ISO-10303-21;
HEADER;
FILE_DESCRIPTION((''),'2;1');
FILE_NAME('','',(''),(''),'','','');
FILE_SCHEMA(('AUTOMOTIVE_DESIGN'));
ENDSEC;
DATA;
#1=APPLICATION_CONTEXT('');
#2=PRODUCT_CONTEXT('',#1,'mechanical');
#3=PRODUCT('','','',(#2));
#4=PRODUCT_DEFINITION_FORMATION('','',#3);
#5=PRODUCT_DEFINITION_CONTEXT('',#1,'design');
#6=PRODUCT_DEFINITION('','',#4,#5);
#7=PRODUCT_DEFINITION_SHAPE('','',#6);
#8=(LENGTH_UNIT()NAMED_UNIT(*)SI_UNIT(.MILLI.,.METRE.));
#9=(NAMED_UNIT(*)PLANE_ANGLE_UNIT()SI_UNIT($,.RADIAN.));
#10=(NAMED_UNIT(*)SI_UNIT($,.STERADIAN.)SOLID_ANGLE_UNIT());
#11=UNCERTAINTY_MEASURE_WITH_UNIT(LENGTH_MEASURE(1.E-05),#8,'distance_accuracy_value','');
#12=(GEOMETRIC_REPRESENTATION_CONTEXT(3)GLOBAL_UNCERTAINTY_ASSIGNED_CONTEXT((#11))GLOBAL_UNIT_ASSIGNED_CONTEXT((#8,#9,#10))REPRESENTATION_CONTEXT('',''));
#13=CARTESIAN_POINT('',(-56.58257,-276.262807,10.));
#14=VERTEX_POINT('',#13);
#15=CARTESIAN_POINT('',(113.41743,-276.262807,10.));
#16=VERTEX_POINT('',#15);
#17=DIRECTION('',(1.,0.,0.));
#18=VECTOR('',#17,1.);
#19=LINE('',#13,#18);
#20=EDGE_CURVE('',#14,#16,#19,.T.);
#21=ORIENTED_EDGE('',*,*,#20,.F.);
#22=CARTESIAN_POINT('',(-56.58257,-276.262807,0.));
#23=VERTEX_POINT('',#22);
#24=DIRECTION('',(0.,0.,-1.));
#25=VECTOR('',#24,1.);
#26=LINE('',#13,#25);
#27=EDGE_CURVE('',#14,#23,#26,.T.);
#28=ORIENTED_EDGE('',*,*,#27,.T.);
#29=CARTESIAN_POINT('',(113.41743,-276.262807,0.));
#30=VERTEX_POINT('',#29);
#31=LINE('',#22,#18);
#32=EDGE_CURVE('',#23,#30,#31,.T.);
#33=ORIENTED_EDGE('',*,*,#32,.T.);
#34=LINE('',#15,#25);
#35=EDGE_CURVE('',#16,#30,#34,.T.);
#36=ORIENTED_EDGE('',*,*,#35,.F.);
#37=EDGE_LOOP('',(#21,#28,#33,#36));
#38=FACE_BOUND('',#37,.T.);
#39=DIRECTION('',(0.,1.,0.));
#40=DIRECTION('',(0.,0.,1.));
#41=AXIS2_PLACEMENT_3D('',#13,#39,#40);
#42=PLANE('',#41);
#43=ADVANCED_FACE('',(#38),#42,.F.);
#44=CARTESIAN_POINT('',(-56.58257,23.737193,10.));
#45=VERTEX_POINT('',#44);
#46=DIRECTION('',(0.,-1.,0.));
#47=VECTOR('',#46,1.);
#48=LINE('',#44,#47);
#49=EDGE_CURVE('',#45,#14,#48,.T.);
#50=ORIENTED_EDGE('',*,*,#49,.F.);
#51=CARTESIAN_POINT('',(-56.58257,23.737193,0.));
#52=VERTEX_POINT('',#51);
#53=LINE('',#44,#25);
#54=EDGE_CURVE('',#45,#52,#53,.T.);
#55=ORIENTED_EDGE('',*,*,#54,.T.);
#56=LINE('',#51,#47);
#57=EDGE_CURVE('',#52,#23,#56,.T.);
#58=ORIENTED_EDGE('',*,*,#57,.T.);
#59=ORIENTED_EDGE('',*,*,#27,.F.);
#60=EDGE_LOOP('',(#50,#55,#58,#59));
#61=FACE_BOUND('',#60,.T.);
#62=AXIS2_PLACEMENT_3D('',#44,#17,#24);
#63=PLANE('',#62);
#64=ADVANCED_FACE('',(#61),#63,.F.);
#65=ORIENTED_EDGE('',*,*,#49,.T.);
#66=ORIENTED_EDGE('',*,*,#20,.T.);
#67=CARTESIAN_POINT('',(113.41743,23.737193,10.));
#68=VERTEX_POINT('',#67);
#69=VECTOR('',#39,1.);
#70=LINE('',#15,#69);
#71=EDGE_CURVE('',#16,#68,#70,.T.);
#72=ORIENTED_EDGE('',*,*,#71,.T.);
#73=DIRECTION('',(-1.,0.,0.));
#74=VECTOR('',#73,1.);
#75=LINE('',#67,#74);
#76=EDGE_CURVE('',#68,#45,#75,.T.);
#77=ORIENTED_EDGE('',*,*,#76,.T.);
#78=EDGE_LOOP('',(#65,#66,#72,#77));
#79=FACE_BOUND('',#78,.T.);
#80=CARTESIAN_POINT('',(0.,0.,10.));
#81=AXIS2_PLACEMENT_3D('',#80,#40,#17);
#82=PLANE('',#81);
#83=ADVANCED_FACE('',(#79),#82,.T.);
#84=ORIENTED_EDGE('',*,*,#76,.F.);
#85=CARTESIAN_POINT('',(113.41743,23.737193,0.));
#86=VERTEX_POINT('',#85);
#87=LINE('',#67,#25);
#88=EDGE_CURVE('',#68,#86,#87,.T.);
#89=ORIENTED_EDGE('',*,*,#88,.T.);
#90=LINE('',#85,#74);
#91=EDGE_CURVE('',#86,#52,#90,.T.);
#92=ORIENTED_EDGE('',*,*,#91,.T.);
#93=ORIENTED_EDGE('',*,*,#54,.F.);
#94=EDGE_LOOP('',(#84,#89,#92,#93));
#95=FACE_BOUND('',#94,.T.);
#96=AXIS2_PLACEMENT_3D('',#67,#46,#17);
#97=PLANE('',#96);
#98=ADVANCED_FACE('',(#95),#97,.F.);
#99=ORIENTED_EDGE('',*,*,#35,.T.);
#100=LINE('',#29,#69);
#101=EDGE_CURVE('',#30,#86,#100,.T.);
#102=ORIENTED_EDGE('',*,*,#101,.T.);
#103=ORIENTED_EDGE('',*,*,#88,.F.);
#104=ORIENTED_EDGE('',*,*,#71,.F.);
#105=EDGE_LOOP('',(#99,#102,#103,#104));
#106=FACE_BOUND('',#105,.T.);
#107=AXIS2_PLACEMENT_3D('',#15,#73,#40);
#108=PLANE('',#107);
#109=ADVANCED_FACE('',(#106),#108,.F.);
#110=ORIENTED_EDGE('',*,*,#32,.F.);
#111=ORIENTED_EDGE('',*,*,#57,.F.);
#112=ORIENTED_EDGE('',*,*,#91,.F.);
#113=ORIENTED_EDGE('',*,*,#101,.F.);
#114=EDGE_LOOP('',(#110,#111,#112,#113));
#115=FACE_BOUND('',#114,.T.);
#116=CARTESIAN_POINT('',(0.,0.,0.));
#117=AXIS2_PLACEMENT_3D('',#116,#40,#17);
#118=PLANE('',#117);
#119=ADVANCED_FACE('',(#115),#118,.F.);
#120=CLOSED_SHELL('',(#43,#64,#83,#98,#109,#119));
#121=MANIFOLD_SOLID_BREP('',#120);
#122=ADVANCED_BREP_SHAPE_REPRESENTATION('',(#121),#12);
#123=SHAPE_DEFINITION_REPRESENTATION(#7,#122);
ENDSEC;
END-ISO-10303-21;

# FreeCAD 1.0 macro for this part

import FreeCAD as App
import Part
import Sketcher

V = App.Vector

doc = App.newDocument("Part")
params = doc.addObject("Spreadsheet::Sheet", "Params")
for row, (alias, value) in enumerate([
    ("sketch1_width", "170 mm"),
    ("sketch1_height", "300 mm"),
    ("pad1_length", "10 mm"),
], start=1):
    params.set(f"A{row}", alias)
    params.set(f"B{row}", "=" + value)
    params.setAlias(f"B{row}", alias)

body = doc.addObject("PartDesign::Body", "Body")

sketch1 = doc.addObject("Sketcher::SketchObject", "Sketch")
body.addObject(sketch1)
sketch1.AttachmentSupport = (doc.XY_Plane, [""])
sketch1.MapMode = "FlatFace"
sketch1.addGeometry([
    Part.LineSegment(V(-57, 24, 0), V(-57, -276, 0)),
    Part.LineSegment(V(-57, -276, 0), V(113, -276, 0)),
    Part.LineSegment(V(113, -276, 0), V(113, 24, 0)),
    Part.LineSegment(V(113, 24, 0), V(-57, 24, 0)),
], False)
sketch1.addConstraint([
    Sketcher.Constraint("Coincident", 0, 2, 1, 1),
    Sketcher.Constraint("Coincident", 1, 2, 2, 1),
    Sketcher.Constraint("Coincident", 2, 2, 3, 1),
    Sketcher.Constraint("Coincident", 3, 2, 0, 1),
    Sketcher.Constraint("Vertical", 0),
    Sketcher.Constraint("Horizontal", 1),
    Sketcher.Constraint("Vertical", 2),
    Sketcher.Constraint("Horizontal", 3),
    Sketcher.Constraint("DistanceX", 1, 1, 1, 2, 170.0),
    Sketcher.Constraint("DistanceY", 0, 2, 0, 1, 300.0),
    Sketcher.Constraint("DistanceX", 0, 2, -1, 1, 56.58257),
    Sketcher.Constraint("DistanceY", 0, 2, -1, 1, 276.262807),
])
sketch1.setExpression("Constraints[8]", "Params.sketch1_width")
sketch1.setExpression("Constraints[9]", "Params.sketch1_height")
pad1 = doc.addObject("PartDesign::Pad", "Pad")
body.addObject(pad1)
pad1.Profile = sketch1
pad1.setExpression("Length", "Params.pad1_length")

doc.recompute()
